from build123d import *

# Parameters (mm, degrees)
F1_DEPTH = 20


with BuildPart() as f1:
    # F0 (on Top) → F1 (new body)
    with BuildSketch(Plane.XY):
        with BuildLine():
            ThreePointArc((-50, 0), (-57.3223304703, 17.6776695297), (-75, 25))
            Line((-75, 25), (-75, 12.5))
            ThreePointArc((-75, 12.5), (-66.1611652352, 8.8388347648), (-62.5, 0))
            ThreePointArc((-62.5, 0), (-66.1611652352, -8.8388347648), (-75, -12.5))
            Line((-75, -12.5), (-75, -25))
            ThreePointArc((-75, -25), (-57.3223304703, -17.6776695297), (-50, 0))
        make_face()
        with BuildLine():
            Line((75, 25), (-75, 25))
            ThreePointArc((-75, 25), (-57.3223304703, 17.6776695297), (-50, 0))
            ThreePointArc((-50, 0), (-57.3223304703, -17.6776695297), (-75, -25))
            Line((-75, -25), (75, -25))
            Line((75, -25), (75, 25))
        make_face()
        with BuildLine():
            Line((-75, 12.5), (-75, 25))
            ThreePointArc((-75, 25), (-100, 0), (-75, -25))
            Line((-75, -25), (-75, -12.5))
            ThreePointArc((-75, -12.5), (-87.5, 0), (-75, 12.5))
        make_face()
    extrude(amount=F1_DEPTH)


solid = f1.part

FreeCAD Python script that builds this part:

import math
import FreeCAD as App
import Part
import Sketcher
from FreeCAD import Vector

doc = App.newDocument("Part")
body = doc.addObject("PartDesign::Body", "Body")

sketch1 = body.newObject("Sketcher::SketchObject", "Sketch")
sketch1.AttachmentSupport = (doc.getObject("XY_Plane"), [""])
sketch1.MapMode = "FlatFace"
sketch1.addGeometry([
    Part.LineSegment(Vector(-75, -25, 0), Vector(75, -25, 0)),
    Part.LineSegment(Vector(75, -25, 0), Vector(75, 25, 0)),
    Part.LineSegment(Vector(75, 25, 0), Vector(-75, 25, 0)),
    Part.ArcOfCircle(Part.Circle(Vector(-75, 0, 0), Vector(0, 0, 1), 25), math.radians(90), math.radians(270)),
    Part.ArcOfCircle(Part.Circle(Vector(-75, 0, 0), Vector(0, 0, 1), 12), math.radians(0), math.radians(90)),
    Part.ArcOfCircle(Part.Circle(Vector(-75, 0, 0), Vector(0, 0, 1), 12), math.radians(-90), math.radians(0)),
    Part.ArcOfCircle(Part.Circle(Vector(-75, 0, 0), Vector(0, 0, 1), 12), math.radians(90), math.radians(270)),
], False)
sketch1.addConstraint([
    Sketcher.Constraint("Coincident", 0, 2, 1, 1),
    Sketcher.Constraint("Coincident", 1, 2, 2, 1),
    Sketcher.Constraint("Tangent", 2, 2, 3, 1),
    Sketcher.Constraint("Tangent", 3, 2, 0, 1),
    Sketcher.Constraint("Tangent", 4, 1, 5, 2),
    Sketcher.Constraint("Tangent", 5, 1, 6, 2),
    Sketcher.Constraint("Tangent", 6, 1, 4, 2),
    Sketcher.Constraint("Horizontal", 0),
    Sketcher.Constraint("Vertical", 1),
    Sketcher.Constraint("Horizontal", 2),
    Sketcher.Constraint("Coincident", 4, 3, 3, 3),
    Sketcher.Constraint("Symmetric", 0, 2, 2, 2, -1, 1),
    Sketcher.Constraint("PointOnObject", 4, 1, -1),
    Sketcher.Constraint("Vertical", 3, 2, 5, 1),
    Sketcher.Constraint("Vertical", 5, 1, 6, 1),
    Sketcher.Constraint("Radius", 3, 25.0),
    Sketcher.Constraint("Radius", 4, 12.5),
    Sketcher.Constraint("DistanceX", 0, 1, 0, 2, 150.0),
])
pad1 = body.newObject("PartDesign::Pad", "Pad")
pad1.Profile = sketch1
pad1.Length = 20

doc.recompute()
